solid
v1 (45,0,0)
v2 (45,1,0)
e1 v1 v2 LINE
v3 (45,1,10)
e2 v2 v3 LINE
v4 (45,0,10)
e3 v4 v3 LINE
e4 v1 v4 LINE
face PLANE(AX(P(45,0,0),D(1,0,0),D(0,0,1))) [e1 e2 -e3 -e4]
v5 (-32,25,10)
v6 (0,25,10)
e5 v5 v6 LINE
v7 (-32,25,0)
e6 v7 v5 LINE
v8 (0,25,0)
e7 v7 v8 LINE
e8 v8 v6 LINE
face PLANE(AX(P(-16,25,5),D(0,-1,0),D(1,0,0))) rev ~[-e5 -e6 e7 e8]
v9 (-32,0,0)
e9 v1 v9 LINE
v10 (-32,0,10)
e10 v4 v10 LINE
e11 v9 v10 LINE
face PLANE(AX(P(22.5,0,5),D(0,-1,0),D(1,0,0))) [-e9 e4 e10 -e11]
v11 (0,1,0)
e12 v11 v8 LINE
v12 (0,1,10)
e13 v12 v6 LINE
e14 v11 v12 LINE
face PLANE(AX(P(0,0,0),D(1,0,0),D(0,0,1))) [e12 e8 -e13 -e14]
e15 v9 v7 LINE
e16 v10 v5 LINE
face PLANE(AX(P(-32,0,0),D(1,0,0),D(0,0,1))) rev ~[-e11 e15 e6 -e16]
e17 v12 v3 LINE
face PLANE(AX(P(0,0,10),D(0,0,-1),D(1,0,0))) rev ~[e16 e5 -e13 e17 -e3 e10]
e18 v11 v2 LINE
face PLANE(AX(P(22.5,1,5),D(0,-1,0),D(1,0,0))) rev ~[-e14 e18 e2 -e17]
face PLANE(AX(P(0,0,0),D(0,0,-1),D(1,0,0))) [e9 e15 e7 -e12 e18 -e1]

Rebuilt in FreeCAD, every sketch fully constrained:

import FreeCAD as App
import Part
import Sketcher

doc = App.newDocument("Part")
body = doc.addObject("PartDesign::Body", "Body")

sketch1 = doc.addObject("Sketcher::SketchObject", "Sketch")
body.addObject(sketch1)
sketch1.AttachmentSupport = (doc.XZ_Plane, [""])
sketch1.MapMode = "FlatFace"
sketch1.addGeometry([
    Part.LineSegment(App.Vector(-32, 10, 0), App.Vector(-32, 0, 0)),
    Part.LineSegment(App.Vector(-32, 0, 0), App.Vector(0, 0, 0)),
    Part.LineSegment(App.Vector(0, 0, 0), App.Vector(0, 10, 0)),
    Part.LineSegment(App.Vector(0, 10, 0), App.Vector(-32, 10, 0)),
], False)
sketch1.addConstraint([
    Sketcher.Constraint("Coincident", 0, 2, 1, 1),
    Sketcher.Constraint("Coincident", 1, 2, 2, 1),
    Sketcher.Constraint("Coincident", 2, 2, 3, 1),
    Sketcher.Constraint("Coincident", 3, 2, 0, 1),
    Sketcher.Constraint("Vertical", 0),
    Sketcher.Constraint("Horizontal", 1),
    Sketcher.Constraint("Vertical", 2),
    Sketcher.Constraint("Horizontal", 3),
    Sketcher.Constraint("Coincident", 1, 2, -1, 1),
    Sketcher.Constraint("DistanceX", 1, 1, 1, 2, 32.0),
    Sketcher.Constraint("DistanceY", 0, 2, 0, 1, 10.0),
])
pad1 = doc.addObject("PartDesign::Pad", "Pad")
body.addObject(pad1)
pad1.Profile = sketch1
pad1.Length = 25
pad1.Reversed = True

sketch2 = doc.addObject("Sketcher::SketchObject", "Sketch001")
body.addObject(sketch2)
sketch2.AttachmentSupport = (doc.XZ_Plane, [""])
sketch2.MapMode = "FlatFace"
sketch2.addGeometry([
    Part.LineSegment(App.Vector(0, 10, 0), App.Vector(0, 0, 0)),
    Part.LineSegment(App.Vector(0, 0, 0), App.Vector(45, 0, 0)),
    Part.LineSegment(App.Vector(45, 0, 0), App.Vector(45, 10, 0)),
    Part.LineSegment(App.Vector(45, 10, 0), App.Vector(0, 10, 0)),
], False)
sketch2.addConstraint([
    Sketcher.Constraint("Coincident", 0, 2, 1, 1),
    Sketcher.Constraint("Coincident", 1, 2, 2, 1),
    Sketcher.Constraint("Coincident", 2, 2, 3, 1),
    Sketcher.Constraint("Coincident", 3, 2, 0, 1),
    Sketcher.Constraint("Vertical", 0),
    Sketcher.Constraint("Horizontal", 1),
    Sketcher.Constraint("Vertical", 2),
    Sketcher.Constraint("Horizontal", 3),
    Sketcher.Constraint("Coincident", 0, 2, -1, 1),
    Sketcher.Constraint("DistanceX", 1, 1, 1, 2, 45.0),
    Sketcher.Constraint("DistanceY", 0, 2, 0, 1, 10.0),
])
pad2 = doc.addObject("PartDesign::Pad", "Pad001")
body.addObject(pad2)
pad2.Profile = sketch2
pad2.Length = 1
pad2.Reversed = True

doc.recompute()
